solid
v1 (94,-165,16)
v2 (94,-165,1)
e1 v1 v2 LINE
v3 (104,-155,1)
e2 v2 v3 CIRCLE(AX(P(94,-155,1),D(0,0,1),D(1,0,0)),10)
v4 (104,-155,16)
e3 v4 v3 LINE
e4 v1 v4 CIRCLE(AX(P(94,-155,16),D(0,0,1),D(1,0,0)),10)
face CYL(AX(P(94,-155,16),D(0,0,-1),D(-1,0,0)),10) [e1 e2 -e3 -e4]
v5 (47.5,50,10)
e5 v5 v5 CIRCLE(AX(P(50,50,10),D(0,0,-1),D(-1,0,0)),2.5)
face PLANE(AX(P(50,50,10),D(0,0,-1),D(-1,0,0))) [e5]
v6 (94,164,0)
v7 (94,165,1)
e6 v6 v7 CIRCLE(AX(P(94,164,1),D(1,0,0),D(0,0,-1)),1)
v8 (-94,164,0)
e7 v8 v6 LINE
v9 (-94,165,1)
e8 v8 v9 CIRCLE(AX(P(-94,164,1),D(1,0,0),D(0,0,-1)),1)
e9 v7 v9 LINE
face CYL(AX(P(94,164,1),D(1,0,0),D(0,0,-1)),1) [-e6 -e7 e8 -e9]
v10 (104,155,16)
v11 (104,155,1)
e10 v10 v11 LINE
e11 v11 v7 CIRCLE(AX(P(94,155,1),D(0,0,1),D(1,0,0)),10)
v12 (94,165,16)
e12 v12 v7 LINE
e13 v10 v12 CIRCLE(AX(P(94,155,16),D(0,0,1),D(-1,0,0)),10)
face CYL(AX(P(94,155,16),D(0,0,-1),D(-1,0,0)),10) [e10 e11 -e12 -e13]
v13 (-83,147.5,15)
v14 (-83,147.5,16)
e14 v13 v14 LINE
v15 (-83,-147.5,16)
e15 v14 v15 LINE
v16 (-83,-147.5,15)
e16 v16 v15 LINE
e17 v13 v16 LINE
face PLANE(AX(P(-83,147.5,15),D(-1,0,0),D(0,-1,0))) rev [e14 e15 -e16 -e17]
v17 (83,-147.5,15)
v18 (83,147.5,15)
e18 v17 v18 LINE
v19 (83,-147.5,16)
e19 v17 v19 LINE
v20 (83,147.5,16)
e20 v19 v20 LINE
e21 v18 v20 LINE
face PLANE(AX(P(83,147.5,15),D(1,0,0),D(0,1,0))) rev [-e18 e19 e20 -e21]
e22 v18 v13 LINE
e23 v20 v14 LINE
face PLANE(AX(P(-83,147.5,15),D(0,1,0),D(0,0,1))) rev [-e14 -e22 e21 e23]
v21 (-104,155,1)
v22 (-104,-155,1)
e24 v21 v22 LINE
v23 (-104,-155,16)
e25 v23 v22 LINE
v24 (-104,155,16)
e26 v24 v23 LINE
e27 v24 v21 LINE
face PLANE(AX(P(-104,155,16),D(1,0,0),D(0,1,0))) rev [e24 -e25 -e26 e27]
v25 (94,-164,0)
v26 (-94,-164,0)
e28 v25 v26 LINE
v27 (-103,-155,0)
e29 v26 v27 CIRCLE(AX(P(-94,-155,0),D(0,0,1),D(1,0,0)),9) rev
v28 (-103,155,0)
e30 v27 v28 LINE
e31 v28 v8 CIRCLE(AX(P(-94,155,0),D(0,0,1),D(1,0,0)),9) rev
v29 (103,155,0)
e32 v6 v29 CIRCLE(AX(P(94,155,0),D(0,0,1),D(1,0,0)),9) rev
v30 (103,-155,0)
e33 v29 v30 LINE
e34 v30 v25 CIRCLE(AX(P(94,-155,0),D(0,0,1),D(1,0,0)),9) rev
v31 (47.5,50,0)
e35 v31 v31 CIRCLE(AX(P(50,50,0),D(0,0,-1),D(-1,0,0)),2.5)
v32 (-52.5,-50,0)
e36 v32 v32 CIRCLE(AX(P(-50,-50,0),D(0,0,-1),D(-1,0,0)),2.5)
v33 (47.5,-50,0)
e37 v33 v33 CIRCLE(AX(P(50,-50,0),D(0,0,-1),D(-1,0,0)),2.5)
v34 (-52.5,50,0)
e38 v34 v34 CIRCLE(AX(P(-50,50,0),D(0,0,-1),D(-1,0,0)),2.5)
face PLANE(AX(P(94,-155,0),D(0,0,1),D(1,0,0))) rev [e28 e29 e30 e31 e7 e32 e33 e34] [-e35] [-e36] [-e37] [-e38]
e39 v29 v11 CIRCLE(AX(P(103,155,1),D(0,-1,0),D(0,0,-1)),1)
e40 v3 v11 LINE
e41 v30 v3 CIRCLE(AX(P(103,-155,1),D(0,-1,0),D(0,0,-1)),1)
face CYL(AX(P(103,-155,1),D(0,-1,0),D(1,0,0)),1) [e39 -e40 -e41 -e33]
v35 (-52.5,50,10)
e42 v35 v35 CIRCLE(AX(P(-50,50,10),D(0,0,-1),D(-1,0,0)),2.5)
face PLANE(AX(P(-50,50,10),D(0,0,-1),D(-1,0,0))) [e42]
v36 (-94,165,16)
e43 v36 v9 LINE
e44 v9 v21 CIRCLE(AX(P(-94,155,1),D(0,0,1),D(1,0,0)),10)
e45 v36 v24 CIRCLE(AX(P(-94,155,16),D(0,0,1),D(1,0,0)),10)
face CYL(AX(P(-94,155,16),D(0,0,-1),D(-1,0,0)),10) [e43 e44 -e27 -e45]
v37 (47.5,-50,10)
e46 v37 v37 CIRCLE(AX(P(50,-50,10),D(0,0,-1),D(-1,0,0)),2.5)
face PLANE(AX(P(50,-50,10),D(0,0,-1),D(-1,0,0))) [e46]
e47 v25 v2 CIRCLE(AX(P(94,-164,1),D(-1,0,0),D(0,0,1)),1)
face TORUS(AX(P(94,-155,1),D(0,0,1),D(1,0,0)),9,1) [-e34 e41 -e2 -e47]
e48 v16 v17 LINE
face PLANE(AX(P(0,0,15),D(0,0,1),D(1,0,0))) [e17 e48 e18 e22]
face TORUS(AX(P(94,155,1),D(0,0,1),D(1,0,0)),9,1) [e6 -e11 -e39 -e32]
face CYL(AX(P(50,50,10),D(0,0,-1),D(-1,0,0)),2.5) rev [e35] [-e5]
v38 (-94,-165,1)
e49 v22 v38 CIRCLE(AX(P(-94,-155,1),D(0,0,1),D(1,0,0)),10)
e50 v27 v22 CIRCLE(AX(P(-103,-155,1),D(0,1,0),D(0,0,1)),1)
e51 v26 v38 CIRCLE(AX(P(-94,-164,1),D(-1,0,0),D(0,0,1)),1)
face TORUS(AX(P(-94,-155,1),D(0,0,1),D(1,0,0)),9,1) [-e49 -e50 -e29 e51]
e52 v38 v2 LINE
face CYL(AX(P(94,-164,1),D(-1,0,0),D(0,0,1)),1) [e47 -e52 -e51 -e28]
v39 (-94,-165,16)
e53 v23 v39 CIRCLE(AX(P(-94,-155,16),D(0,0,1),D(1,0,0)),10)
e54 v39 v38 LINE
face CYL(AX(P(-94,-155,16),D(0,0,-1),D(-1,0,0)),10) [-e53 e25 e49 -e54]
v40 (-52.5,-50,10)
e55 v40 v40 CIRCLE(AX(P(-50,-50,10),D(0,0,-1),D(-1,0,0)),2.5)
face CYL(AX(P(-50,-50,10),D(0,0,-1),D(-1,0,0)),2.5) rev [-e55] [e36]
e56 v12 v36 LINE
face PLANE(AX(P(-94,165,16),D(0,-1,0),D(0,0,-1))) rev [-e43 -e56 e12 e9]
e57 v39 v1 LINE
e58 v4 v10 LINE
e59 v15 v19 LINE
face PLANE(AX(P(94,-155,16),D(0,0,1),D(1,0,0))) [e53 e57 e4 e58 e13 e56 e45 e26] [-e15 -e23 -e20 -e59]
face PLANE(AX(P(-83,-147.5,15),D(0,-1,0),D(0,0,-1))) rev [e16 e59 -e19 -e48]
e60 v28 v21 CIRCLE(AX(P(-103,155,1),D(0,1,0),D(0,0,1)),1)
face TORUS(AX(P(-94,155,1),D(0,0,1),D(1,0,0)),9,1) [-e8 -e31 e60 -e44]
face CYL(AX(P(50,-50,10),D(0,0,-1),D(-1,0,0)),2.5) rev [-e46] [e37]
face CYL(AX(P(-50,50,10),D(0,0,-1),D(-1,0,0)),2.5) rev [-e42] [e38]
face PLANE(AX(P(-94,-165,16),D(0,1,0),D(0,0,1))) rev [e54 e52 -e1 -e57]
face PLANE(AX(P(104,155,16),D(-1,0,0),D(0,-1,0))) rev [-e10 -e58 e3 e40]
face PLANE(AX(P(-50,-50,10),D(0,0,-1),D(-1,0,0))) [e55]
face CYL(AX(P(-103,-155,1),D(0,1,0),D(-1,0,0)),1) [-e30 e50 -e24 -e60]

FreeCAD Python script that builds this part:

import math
import FreeCAD as App
import Part
import Sketcher

V = App.Vector


def edges_at(feature, points):
    """Names of the edges that pass closest to the given points."""
    edges = feature.Shape.Edges
    near = lambda p: min(range(len(edges)), key=lambda i: edges[i].distToShape(Part.Vertex(*p))[0])
    return sorted({f"Edge{near(p) + 1}" for p in points})

doc = App.newDocument("Part")
params = doc.addObject("Spreadsheet::Sheet", "Params")
for row, (alias, value) in enumerate([
    ("sketch1_radius", "10 mm"),
    ("sketch1_width", "188 mm"),
    ("sketch1_height", "310 mm"),
    ("pad1_length", "16 mm"),
    ("fillet_radius", "1 mm"),
    ("sketch2_width", "166 mm"),
    ("sketch2_height", "295 mm"),
    ("pocket1_length", "1 mm"),
    ("sketch3_diameter", "5 mm"),
    ("pocket2_length", "10 mm"),
], start=1):
    params.set(f"A{row}", alias)
    params.set(f"B{row}", "=" + value)
    params.setAlias(f"B{row}", alias)

body = doc.addObject("PartDesign::Body", "Body")

sketch1 = doc.addObject("Sketcher::SketchObject", "Sketch")
body.addObject(sketch1)
sketch1.AttachmentSupport = (doc.XY_Plane, [""])
sketch1.MapMode = "FlatFace"
sketch1.addGeometry([
    Part.LineSegment(V(94, 165, 0), V(-94, 165, 0)),
    Part.ArcOfCircle(Part.Circle(V(-94, 155, 0), V(0, 0, 1), 10), math.radians(90), math.radians(180)),
    Part.LineSegment(V(-104, 155, 0), V(-104, -155, 0)),
    Part.ArcOfCircle(Part.Circle(V(-94, -155, 0), V(0, 0, 1), 10), math.radians(180), math.radians(270)),
    Part.LineSegment(V(-94, -165, 0), V(94, -165, 0)),
    Part.ArcOfCircle(Part.Circle(V(94, -155, 0), V(0, 0, 1), 10), math.radians(-90), math.radians(0)),
    Part.LineSegment(V(104, -155, 0), V(104, 155, 0)),
    Part.ArcOfCircle(Part.Circle(V(94, 155, 0), V(0, 0, 1), 10), math.radians(0), math.radians(90)),
], False)
sketch1.addConstraint([
    Sketcher.Constraint("Tangent", 0, 2, 1, 1),
    Sketcher.Constraint("Tangent", 1, 2, 2, 1),
    Sketcher.Constraint("Tangent", 2, 2, 3, 1),
    Sketcher.Constraint("Tangent", 3, 2, 4, 1),
    Sketcher.Constraint("Tangent", 4, 2, 5, 1),
    Sketcher.Constraint("Tangent", 5, 2, 6, 1),
    Sketcher.Constraint("Tangent", 6, 2, 7, 1),
    Sketcher.Constraint("Tangent", 7, 2, 0, 1),
    Sketcher.Constraint("Horizontal", 0),
    Sketcher.Constraint("Vertical", 2),
    Sketcher.Constraint("Horizontal", 4),
    Sketcher.Constraint("Vertical", 6),
    Sketcher.Constraint("Equal", 1, 3),
    Sketcher.Constraint("Equal", 3, 5),
    Sketcher.Constraint("Equal", 5, 7),
    Sketcher.Constraint("Symmetric", 1, 3, 5, 3, -1, 1),
    Sketcher.Constraint("Radius", 1, 10.0),
    Sketcher.Constraint("DistanceX", 0, 2, 0, 1, 188.0),
    Sketcher.Constraint("DistanceY", 2, 2, 2, 1, 310.0),
])
sketch1.setExpression("Constraints[16]", "Params.sketch1_radius")
sketch1.setExpression("Constraints[17]", "Params.sketch1_width")
sketch1.setExpression("Constraints[18]", "Params.sketch1_height")
pad1 = doc.addObject("PartDesign::Pad", "Pad")
body.addObject(pad1)
pad1.Profile = sketch1
pad1.setExpression("Length", "Params.pad1_length")
doc.recompute()

fillet = doc.addObject("PartDesign::Fillet", "Fillet")
body.addObject(fillet)
fillet.Base = (pad1, edges_at(pad1, [
    (0, 165, 0),
    (101.071, 162.071, 0),
    (104, 0, 0),
    (101.071, -162.071, 0),
    (0, -165, 0),
    (-101.071, -162.071, 0),
    (-104, 0, 0),
    (-101.071, 162.071, 0),
]))
fillet.setExpression("Radius", "Params.fillet_radius")

sketch2 = doc.addObject("Sketcher::SketchObject", "Sketch001")
body.addObject(sketch2)
sketch2.AttachmentSupport = (doc.XY_Plane, [""])
sketch2.MapMode = "FlatFace"
sketch2.AttachmentOffset = App.Placement(V(0, 0, 16), App.Rotation())
sketch2.addGeometry([
    Part.LineSegment(V(-83, 148, 0), V(-83, -148, 0)),
    Part.LineSegment(V(-83, -148, 0), V(83, -148, 0)),
    Part.LineSegment(V(83, -148, 0), V(83, 148, 0)),
    Part.LineSegment(V(83, 148, 0), V(-83, 148, 0)),
], False)
sketch2.addConstraint([
    Sketcher.Constraint("Coincident", 0, 2, 1, 1),
    Sketcher.Constraint("Coincident", 1, 2, 2, 1),
    Sketcher.Constraint("Coincident", 2, 2, 3, 1),
    Sketcher.Constraint("Coincident", 3, 2, 0, 1),
    Sketcher.Constraint("Vertical", 0),
    Sketcher.Constraint("Horizontal", 1),
    Sketcher.Constraint("Vertical", 2),
    Sketcher.Constraint("Horizontal", 3),
    Sketcher.Constraint("Symmetric", 0, 2, 2, 2, -1, 1),
    Sketcher.Constraint("DistanceX", 1, 1, 1, 2, 166.0),
    Sketcher.Constraint("DistanceY", 0, 2, 0, 1, 295.0),
])
sketch2.setExpression("Constraints[9]", "Params.sketch2_width")
sketch2.setExpression("Constraints[10]", "Params.sketch2_height")
pocket1 = doc.addObject("PartDesign::Pocket", "Pocket")
body.addObject(pocket1)
pocket1.Profile = sketch2
pocket1.setExpression("Length", "Params.pocket1_length")

sketch3 = doc.addObject("Sketcher::SketchObject", "Sketch002")
body.addObject(sketch3)
sketch3.AttachmentSupport = (doc.XY_Plane, [""])
sketch3.MapMode = "FlatFace"
sketch3.addGeometry([
    Part.Circle(V(50, 50, 0), V(0, 0, 1), 2.5),
    Part.Circle(V(-50, 50, 0), V(0, 0, 1), 2.5),
    Part.Circle(V(-50, -50, 0), V(0, 0, 1), 2.5),
    Part.Circle(V(50, -50, 0), V(0, 0, 1), 2.5),
], False)
sketch3.addConstraint([
    Sketcher.Constraint("Equal", 0, 1),
    Sketcher.Constraint("Equal", 1, 2),
    Sketcher.Constraint("Equal", 2, 3),
    Sketcher.Constraint("Symmetric", 0, 3, 2, 3, -1, 1),
    Sketcher.Constraint("Symmetric", 1, 3, 3, 3, -1, 1),
    Sketcher.Constraint("Symmetric", 0, 3, 1, 3, -2),
    Sketcher.Constraint("Diameter", 0, 5.0),
    Sketcher.Constraint("DistanceX", -1, 1, 0, 3, 50.0),
    Sketcher.Constraint("DistanceY", -1, 1, 0, 3, 50.0),
])
sketch3.setExpression("Constraints[6]", "Params.sketch3_diameter")
pocket2 = doc.addObject("PartDesign::Pocket", "Pocket001")
body.addObject(pocket2)
pocket2.Profile = sketch3
pocket2.setExpression("Length", "Params.pocket2_length")
pocket2.Reversed = True

doc.recompute()
